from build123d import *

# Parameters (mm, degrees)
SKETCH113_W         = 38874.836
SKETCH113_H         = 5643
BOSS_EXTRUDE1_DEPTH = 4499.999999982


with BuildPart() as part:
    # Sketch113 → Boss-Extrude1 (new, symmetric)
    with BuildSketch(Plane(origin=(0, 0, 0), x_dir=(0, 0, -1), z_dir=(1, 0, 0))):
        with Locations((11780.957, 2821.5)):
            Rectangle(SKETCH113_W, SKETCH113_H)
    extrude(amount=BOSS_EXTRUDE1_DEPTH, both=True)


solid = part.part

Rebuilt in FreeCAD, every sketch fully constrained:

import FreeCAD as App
import Part
import Sketcher
from FreeCAD import Vector
Q = App.Units.Quantity


def add_polygon(sketch, points):
    """Adds a closed chain of lines whose ends are joined by coincident constraints."""
    first, n = sketch.GeometryCount, len(points)
    for a, b in zip(points, points[1:] + points[:1]):
        sketch.addGeometry(Part.LineSegment(App.Vector(*a, 0), App.Vector(*b, 0)), False)
    for i in range(n):
        sketch.addConstraint(Sketcher.Constraint("Coincident", first + i, 2, first + (i + 1) % n, 1))

doc = App.newDocument("Part")
body = doc.addObject("PartDesign::Body", "Body")

sketch1 = doc.addObject("Sketcher::SketchObject", "Sketch")
body.addObject(sketch1)
sketch1.AttachmentSupport = (doc.YZ_Plane, [""])
sketch1.MapMode = "FlatFace"
add_polygon(sketch1, [(5643, 7656), (0, 7656), (0, -31218), (5643, -31218)])
sketch1.addConstraint([
    Sketcher.Constraint("Horizontal", 0),
    Sketcher.Constraint("Vertical", 1),
    Sketcher.Constraint("Horizontal", 2),
    Sketcher.Constraint("Vertical", 3),
    Sketcher.Constraint("PointOnObject", 0, 2, -2),
    Sketcher.Constraint("DistanceX", 0, 2, 0, 1, Q("5643 mm")),
    Sketcher.Constraint("DistanceY", 1, 2, 1, 1, Q("38874.836 mm")),
    Sketcher.Constraint("DistanceY", -1, 1, 0, 2, Q("7656.461 mm")),
])
pad1 = doc.addObject("PartDesign::Pad", "Pad")
body.addObject(pad1)
pad1.Profile = sketch1
pad1.Length = 9000
pad1.Midplane = True

doc.recompute()
